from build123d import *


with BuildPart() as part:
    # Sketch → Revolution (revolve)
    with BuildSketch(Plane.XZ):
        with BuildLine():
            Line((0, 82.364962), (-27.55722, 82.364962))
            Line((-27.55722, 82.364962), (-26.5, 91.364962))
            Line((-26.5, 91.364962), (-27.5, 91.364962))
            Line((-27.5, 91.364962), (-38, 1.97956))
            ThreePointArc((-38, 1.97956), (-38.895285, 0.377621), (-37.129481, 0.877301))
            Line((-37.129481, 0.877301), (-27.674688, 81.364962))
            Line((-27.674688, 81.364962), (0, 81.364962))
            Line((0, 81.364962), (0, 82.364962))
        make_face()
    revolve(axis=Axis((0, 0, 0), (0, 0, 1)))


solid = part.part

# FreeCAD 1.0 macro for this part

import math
import FreeCAD as App
import Part
import Sketcher
from FreeCAD import Vector

doc = App.newDocument("Part")
params = doc.addObject("Spreadsheet::Sheet", "Params")
for row, (alias, value) in enumerate([
    ("sketch1_width", "1 mm"),
    ("sketch1_length", "90.000001 mm"),
    ("revolution_angle", "360 deg"),
], start=1):
    params.set(f"A{row}", alias)
    params.set(f"B{row}", "=" + value)
    params.setAlias(f"B{row}", alias)

body = doc.addObject("PartDesign::Body", "Body")

sketch1 = body.newObject("Sketcher::SketchObject", "Sketch")
sketch1.AttachmentSupport = (doc.getObject("XZ_Plane"), [""])
sketch1.MapMode = "FlatFace"
sketch1.addGeometry([
    Part.LineSegment(Vector(0, 82.4, 0), Vector(-27.6, 82.4, 0)),
    Part.LineSegment(Vector(-27.6, 82.4, 0), Vector(-26.5, 91.4, 0)),
    Part.LineSegment(Vector(-26.5, 91.4, 0), Vector(-27.5, 91.4, 0)),
    Part.LineSegment(Vector(-27.5, 91.4, 0), Vector(-38, 2, 0)),
    Part.ArcOfCircle(Part.Circle(Vector(-38.1, 1, 0), Vector(0, 0, 1), 1), math.radians(83), math.radians(353)),
    Part.LineSegment(Vector(-37.1, 0.9, 0), Vector(-27.7, 81.4, 0)),
    Part.LineSegment(Vector(-27.7, 81.4, 0), Vector(0, 81.4, 0)),
    Part.LineSegment(Vector(0, 81.4, 0), Vector(0, 82.4, 0)),
], False)
sketch1.addConstraint([
    Sketcher.Constraint("Coincident", 0, 2, 1, 1),
    Sketcher.Constraint("Coincident", 1, 2, 2, 1),
    Sketcher.Constraint("Coincident", 2, 2, 3, 1),
    Sketcher.Constraint("Coincident", 3, 2, 4, 1),
    Sketcher.Constraint("Tangent", 4, 2, 5, 1),
    Sketcher.Constraint("Coincident", 5, 2, 6, 1),
    Sketcher.Constraint("Coincident", 6, 2, 7, 1),
    Sketcher.Constraint("Coincident", 7, 2, 0, 1),
    Sketcher.Constraint("Horizontal", 0),
    Sketcher.Constraint("Horizontal", 2),
    Sketcher.Constraint("Horizontal", 6),
    Sketcher.Constraint("Vertical", 7),
    Sketcher.Constraint("PointOnObject", 6, 2, -2),
    Sketcher.Constraint("Parallel", 1, 3),
    Sketcher.Constraint("Parallel", 3, 5),
    Sketcher.Constraint("Equal", 2, 7),
    Sketcher.Constraint("DistanceX", 2, 2, 2, 1, 1.0),
    Sketcher.Constraint("Distance", 3, 90.000001),
    Sketcher.Constraint("DistanceX", 3, 2, -1, 1, 38.0),
    Sketcher.Constraint("DistanceY", 0, 2, 1, 2, 9.0),
    Sketcher.Constraint("DistanceX", 1, 2, -1, 1, 26.5),
    Sketcher.Constraint("Radius", 4, 0.993171),
    Sketcher.Constraint("DistanceX", 6, 1, 6, 2, 27.674688),
    Sketcher.Constraint("DistanceY", -1, 1, 4, 2, 0.877301),
])
sketch1.setExpression("Constraints[16]", "Params.sketch1_width")
sketch1.setExpression("Constraints[17]", "Params.sketch1_length")
revolution = body.newObject("PartDesign::Revolution", "Revolution")
revolution.Profile = sketch1
revolution.ReferenceAxis = (sketch1, ["V_Axis"])
revolution.setExpression("Angle", "Params.revolution_angle")

doc.recompute()
